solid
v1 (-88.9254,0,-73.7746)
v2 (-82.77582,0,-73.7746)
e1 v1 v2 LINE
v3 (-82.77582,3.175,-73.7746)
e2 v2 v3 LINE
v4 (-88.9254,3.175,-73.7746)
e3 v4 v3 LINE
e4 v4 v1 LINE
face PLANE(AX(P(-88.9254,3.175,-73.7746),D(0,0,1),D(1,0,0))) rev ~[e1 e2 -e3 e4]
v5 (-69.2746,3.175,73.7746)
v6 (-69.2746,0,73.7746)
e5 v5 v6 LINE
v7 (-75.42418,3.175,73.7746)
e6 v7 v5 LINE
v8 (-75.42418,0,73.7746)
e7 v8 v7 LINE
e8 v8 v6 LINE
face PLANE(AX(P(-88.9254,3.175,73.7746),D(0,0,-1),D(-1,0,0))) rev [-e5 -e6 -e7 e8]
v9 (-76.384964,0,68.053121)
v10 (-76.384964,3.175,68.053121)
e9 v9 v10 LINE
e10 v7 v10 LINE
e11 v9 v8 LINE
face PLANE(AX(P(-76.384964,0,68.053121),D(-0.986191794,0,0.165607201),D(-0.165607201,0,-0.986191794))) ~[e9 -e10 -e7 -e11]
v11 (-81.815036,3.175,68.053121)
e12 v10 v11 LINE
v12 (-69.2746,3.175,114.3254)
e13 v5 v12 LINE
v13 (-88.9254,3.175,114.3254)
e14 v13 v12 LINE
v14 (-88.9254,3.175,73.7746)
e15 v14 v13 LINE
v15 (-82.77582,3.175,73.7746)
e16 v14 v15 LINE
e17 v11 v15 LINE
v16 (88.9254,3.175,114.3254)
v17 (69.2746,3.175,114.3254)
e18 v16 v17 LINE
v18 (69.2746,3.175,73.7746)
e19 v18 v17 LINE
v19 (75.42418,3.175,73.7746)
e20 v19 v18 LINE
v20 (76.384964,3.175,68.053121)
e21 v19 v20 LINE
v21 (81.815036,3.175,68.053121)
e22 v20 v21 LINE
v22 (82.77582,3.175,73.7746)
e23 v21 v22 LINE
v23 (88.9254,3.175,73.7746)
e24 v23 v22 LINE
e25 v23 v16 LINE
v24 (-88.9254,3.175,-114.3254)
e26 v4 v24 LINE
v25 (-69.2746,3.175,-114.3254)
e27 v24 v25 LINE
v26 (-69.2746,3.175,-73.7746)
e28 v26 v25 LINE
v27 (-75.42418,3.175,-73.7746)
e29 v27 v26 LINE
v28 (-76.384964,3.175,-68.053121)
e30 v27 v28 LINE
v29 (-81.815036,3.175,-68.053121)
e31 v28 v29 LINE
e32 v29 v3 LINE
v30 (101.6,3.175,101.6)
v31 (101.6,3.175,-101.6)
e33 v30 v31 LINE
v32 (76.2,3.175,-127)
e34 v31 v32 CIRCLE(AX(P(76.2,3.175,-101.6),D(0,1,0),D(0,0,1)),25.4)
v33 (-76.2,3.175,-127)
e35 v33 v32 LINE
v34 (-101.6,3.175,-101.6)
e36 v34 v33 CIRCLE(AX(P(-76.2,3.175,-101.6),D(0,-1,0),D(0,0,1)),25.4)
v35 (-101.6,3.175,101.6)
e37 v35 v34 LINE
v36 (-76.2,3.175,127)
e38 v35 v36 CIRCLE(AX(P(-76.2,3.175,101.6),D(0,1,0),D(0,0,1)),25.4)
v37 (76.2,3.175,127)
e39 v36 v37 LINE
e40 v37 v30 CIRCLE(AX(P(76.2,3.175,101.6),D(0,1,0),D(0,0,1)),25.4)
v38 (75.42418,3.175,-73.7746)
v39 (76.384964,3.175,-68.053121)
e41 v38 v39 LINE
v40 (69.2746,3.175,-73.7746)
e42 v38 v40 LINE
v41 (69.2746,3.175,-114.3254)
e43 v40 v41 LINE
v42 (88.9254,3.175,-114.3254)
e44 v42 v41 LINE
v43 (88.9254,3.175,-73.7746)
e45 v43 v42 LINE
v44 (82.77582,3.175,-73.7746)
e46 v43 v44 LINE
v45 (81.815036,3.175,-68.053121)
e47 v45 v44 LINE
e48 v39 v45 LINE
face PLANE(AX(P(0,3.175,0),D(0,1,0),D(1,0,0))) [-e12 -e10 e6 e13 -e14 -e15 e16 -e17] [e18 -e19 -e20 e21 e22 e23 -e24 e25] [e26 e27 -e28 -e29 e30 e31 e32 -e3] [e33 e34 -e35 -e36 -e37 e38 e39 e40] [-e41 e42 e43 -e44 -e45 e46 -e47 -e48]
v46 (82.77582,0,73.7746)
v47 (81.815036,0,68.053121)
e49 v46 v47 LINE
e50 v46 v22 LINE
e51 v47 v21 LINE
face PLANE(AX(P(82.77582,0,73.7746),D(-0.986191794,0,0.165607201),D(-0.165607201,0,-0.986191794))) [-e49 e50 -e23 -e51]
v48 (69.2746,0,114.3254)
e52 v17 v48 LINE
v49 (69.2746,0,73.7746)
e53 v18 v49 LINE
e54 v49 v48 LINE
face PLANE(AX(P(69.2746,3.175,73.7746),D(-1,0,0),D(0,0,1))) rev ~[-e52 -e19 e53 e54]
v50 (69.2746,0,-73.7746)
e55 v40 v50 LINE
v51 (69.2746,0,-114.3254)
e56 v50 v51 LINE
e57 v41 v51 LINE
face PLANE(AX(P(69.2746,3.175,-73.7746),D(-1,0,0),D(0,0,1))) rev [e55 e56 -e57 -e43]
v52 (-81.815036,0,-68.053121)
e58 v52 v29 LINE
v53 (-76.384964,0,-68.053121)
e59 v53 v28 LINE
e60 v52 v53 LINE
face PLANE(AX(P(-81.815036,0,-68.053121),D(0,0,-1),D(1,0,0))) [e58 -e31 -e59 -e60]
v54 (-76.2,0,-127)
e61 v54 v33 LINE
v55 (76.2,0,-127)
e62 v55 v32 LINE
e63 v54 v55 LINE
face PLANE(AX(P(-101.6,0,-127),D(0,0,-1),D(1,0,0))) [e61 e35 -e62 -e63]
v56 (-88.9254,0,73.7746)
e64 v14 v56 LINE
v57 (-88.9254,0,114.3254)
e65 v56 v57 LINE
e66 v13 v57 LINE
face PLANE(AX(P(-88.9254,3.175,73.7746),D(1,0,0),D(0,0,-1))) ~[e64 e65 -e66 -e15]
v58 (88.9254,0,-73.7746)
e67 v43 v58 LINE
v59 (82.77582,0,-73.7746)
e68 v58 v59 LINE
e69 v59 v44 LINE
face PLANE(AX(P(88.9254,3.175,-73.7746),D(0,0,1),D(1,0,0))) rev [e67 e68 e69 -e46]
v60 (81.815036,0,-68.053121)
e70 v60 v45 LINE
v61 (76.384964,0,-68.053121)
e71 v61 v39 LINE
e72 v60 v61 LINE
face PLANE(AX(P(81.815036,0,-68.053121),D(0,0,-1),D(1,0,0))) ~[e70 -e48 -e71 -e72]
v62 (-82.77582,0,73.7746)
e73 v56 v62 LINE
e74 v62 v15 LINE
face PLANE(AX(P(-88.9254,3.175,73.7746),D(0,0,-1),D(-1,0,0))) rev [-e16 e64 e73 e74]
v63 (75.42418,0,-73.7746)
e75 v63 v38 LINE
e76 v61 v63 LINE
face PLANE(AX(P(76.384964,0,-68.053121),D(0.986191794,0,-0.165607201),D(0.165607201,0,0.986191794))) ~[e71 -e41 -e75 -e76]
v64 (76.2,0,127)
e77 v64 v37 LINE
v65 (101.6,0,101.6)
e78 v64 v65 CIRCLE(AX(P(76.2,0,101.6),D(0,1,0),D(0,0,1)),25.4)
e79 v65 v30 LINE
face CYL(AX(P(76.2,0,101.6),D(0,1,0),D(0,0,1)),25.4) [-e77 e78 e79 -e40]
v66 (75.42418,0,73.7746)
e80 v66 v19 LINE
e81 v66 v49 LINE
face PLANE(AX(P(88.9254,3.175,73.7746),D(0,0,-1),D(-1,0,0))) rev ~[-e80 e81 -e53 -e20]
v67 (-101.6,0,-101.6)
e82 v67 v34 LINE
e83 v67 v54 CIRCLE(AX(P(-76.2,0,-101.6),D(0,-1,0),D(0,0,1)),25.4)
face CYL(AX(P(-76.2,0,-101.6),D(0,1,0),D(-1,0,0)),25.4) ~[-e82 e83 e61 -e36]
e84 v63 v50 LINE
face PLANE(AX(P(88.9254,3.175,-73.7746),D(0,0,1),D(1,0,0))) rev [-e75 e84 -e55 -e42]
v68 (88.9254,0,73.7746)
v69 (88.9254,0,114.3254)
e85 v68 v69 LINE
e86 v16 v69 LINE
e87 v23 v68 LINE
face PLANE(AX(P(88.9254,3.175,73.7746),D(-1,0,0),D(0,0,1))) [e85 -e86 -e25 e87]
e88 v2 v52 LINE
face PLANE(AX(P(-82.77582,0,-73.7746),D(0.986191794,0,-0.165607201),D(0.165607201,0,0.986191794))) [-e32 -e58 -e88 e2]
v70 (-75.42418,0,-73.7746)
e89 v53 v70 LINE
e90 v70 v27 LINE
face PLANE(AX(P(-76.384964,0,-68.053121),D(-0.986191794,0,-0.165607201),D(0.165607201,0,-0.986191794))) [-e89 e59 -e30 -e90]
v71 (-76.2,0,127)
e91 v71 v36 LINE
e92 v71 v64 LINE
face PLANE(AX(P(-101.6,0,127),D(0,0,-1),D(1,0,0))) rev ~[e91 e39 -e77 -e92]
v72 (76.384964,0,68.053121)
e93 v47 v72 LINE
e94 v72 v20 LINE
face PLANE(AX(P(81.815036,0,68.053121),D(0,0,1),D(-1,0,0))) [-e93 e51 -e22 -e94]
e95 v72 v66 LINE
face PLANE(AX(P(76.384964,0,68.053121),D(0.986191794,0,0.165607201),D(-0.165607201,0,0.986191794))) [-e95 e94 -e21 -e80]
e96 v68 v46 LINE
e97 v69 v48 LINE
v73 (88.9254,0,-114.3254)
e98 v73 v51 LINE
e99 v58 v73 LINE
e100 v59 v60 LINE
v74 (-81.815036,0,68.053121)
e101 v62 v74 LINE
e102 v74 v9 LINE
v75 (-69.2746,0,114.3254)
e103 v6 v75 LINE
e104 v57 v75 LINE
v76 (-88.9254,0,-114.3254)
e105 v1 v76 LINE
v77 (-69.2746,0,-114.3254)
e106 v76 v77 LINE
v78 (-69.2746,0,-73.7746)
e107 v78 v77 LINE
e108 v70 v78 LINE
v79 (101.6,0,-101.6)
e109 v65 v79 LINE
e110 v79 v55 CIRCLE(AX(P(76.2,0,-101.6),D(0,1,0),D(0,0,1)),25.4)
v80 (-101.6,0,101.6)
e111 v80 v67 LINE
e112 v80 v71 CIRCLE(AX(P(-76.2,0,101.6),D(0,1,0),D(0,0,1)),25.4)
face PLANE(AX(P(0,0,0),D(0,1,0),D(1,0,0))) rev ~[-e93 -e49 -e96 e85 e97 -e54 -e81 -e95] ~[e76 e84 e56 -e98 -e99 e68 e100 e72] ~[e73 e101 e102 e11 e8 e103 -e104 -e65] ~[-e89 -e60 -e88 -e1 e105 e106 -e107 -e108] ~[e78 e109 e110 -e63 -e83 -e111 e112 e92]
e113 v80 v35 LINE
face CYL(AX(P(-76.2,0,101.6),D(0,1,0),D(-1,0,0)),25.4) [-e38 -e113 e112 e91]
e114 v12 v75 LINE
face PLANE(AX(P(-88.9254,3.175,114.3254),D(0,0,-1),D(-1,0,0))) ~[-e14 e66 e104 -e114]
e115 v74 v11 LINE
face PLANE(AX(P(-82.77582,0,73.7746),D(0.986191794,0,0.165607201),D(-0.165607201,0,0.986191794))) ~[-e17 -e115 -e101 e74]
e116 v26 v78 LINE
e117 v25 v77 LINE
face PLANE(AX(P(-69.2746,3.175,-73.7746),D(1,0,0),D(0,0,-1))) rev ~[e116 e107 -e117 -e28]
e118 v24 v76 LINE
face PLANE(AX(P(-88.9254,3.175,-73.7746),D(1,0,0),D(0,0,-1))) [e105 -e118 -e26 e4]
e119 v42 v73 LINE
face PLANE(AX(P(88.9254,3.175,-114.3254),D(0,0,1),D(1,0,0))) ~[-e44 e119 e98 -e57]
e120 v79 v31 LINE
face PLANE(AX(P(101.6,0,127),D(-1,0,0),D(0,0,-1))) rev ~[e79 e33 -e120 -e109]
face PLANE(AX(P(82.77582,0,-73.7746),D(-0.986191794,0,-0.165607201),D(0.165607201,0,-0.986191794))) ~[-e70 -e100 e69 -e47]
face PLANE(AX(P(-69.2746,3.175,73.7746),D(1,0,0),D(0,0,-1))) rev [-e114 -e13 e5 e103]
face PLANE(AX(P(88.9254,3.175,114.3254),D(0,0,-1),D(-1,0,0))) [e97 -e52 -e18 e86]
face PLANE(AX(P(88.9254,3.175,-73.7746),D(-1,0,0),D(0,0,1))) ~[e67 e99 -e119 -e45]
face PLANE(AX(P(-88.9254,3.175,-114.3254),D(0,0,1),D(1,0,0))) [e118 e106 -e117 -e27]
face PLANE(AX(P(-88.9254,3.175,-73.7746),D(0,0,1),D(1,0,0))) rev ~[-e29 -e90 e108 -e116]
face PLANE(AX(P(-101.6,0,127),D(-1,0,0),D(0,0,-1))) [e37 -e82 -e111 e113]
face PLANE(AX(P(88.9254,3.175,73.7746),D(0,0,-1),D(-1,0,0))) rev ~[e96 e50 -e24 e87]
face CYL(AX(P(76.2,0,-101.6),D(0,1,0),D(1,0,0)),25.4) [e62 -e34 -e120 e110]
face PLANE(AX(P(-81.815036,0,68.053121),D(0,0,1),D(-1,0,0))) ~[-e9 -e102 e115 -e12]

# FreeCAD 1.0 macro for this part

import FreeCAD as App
import Part
import Sketcher
Q = App.Units.Quantity


def edges_at(feature, points):
    """Names of the edges that pass closest to the given points."""
    edges = feature.Shape.Edges
    near = lambda p: min(range(len(edges)), key=lambda i: edges[i].distToShape(Part.Vertex(*p))[0])
    return sorted({f"Edge{near(p) + 1}" for p in points})

doc = App.newDocument("Part")
body = doc.addObject("PartDesign::Body", "Body")

# Sketch on XZ plane
sketch1 = body.newObject("Sketcher::SketchObject", "Sketch")
sketch1.AttachmentSupport = (doc.getObject("XZ_Plane"), [""])
sketch1.MapMode = "FlatFace"
sketch1.addGeometry([
    Part.LineSegment(App.Vector(-102, -127, 0), App.Vector(-102, 127, 0)),
    Part.LineSegment(App.Vector(-102, 127, 0), App.Vector(102, 127, 0)),
    Part.LineSegment(App.Vector(102, 127, 0), App.Vector(102, -127, 0)),
    Part.LineSegment(App.Vector(102, -127, 0), App.Vector(-102, -127, 0)),
], False)
sketch1.addConstraint([
    Sketcher.Constraint("Coincident", 0, 2, 1, 1),
    Sketcher.Constraint("Coincident", 1, 2, 2, 1),
    Sketcher.Constraint("Coincident", 2, 2, 3, 1),
    Sketcher.Constraint("Coincident", 3, 2, 0, 1),
    Sketcher.Constraint("Vertical", 0),
    Sketcher.Constraint("Horizontal", 1),
    Sketcher.Constraint("Vertical", 2),
    Sketcher.Constraint("Horizontal", 3),
    Sketcher.Constraint("Symmetric", 0, 2, 2, 2, -1, 1),
    Sketcher.Constraint("DistanceX", 1, 1, 1, 2, Q("8 in")),
    Sketcher.Constraint("DistanceY", 0, 1, 0, 2, Q("10 in")),
])
pad1 = body.newObject("PartDesign::Pad", "Pad")
pad1.Profile = sketch1
pad1.Length = Q("0.125 in")
pad1.Reversed = True
doc.recompute()

fillet = body.newObject("PartDesign::Fillet", "Fillet")
fillet.Base = (pad1, edges_at(pad1, [
    (101.6, 1.587, 127),
    (-101.6, 1.587, 127),
    (-101.6, 1.587, -127),
    (101.6, 1.587, -127),
]))
fillet.Radius = Q("1 in")

# Sketch on XZ plane
sketch2 = body.newObject("Sketcher::SketchObject", "Sketch001")
sketch2.AttachmentSupport = (doc.getObject("XZ_Plane"), [""])
sketch2.MapMode = "FlatFace"
sketch2.AttachmentOffset = App.Placement(App.Vector(0, 0, -0.125 * 25.4), App.Rotation())
sketch2.addGeometry([
    Part.LineSegment(App.Vector(-89, -114, 0), App.Vector(-89, -74, 0)),
    Part.LineSegment(App.Vector(-89, -74, 0), App.Vector(-69, -74, 0)),
    Part.LineSegment(App.Vector(-69, -74, 0), App.Vector(-69, -114, 0)),
    Part.LineSegment(App.Vector(-69, -114, 0), App.Vector(-89, -114, 0)),
], False)
sketch2.addConstraint([
    Sketcher.Constraint("Coincident", 0, 2, 1, 1),
    Sketcher.Constraint("Coincident", 1, 2, 2, 1),
    Sketcher.Constraint("Coincident", 2, 2, 3, 1),
    Sketcher.Constraint("Coincident", 3, 2, 0, 1),
    Sketcher.Constraint("Vertical", 0),
    Sketcher.Constraint("Horizontal", 1),
    Sketcher.Constraint("Vertical", 2),
    Sketcher.Constraint("Horizontal", 3),
    Sketcher.Constraint("DistanceX", 0, 2, -1, 1, Q("3.501 in")),
    Sketcher.Constraint("DistanceY", 2, 2, -1, 1, Q("4.501 in")),
    Sketcher.Constraint("DistanceX", 1, 1, 1, 2, 19.6508),
    Sketcher.Constraint("DistanceY", 0, 1, 0, 2, 40.5508),
])
pocket1 = body.newObject("PartDesign::Pocket", "Pocket")
pocket1.Profile = sketch2
pocket1.Type = "ThroughAll"
pocket1.Reversed = True

# Sketch on XZ plane
sketch3 = body.newObject("Sketcher::SketchObject", "Sketch002")
sketch3.AttachmentSupport = (doc.getObject("XZ_Plane"), [""])
sketch3.MapMode = "FlatFace"
sketch3.addGeometry([
    Part.LineSegment(App.Vector(-82, -68, 0), App.Vector(-83, -74, 0)),
    Part.LineSegment(App.Vector(-83, -74, 0), App.Vector(-75, -74, 0)),
    Part.LineSegment(App.Vector(-75, -74, 0), App.Vector(-76, -68, 0)),
    Part.LineSegment(App.Vector(-76, -68, 0), App.Vector(-82, -68, 0)),
], False)
sketch3.addConstraint([
    Sketcher.Constraint("Coincident", 0, 2, 1, 1),
    Sketcher.Constraint("Coincident", 1, 2, 2, 1),
    Sketcher.Constraint("Coincident", 2, 2, 3, 1),
    Sketcher.Constraint("Coincident", 3, 2, 0, 1),
    Sketcher.Constraint("Horizontal", 1),
    Sketcher.Constraint("Horizontal", 3),
    Sketcher.Constraint("Equal", 0, 2),
    Sketcher.Constraint("DistanceX", 1, 1, 1, 2, 7.351641),
    Sketcher.Constraint("DistanceX", 3, 2, 3, 1, 5.430071),
    Sketcher.Constraint("DistanceY", 0, 2, -1, 1, 73.7746),
    Sketcher.Constraint("Distance", 0, 5.801588),
    Sketcher.Constraint("DistanceX", 0, 2, -1, 1, 82.77582),
])
pocket2 = body.newObject("PartDesign::Pocket", "Pocket001")
pocket2.Profile = sketch3
pocket2.Type = "ThroughAll"
doc.recompute()

mirrored = body.newObject("PartDesign::Mirrored", "Mirrored")
mirrored.Originals = [pocket1, pocket2]
mirrored.MirrorPlane = (doc.getObject("YZ_Plane"), [""])
body.Tip = mirrored
doc.recompute()

mirrored2 = body.newObject("PartDesign::Mirrored", "Mirrored001")
mirrored2.Originals = [pocket1, pocket2]
mirrored2.MirrorPlane = (doc.getObject("XY_Plane"), [""])
body.Tip = mirrored2

# Sketch on XZ plane
sketch4 = body.newObject("Sketcher::SketchObject", "Sketch003")
sketch4.AttachmentSupport = (doc.getObject("XZ_Plane"), [""])
sketch4.MapMode = "FlatFace"
sketch4.AttachmentOffset = App.Placement(App.Vector(0, 0, -0.125 * 25.4), App.Rotation())
sketch4.addGeometry([
    Part.LineSegment(App.Vector(89, 114, 0), App.Vector(89, 74, 0)),
    Part.LineSegment(App.Vector(89, 74, 0), App.Vector(69, 74, 0)),
    Part.LineSegment(App.Vector(69, 74, 0), App.Vector(69, 114, 0)),
    Part.LineSegment(App.Vector(69, 114, 0), App.Vector(89, 114, 0)),
], False)
sketch4.addConstraint([
    Sketcher.Constraint("Coincident", 0, 2, 1, 1),
    Sketcher.Constraint("Coincident", 1, 2, 2, 1),
    Sketcher.Constraint("Coincident", 2, 2, 3, 1),
    Sketcher.Constraint("Coincident", 3, 2, 0, 1),
    Sketcher.Constraint("Vertical", 0),
    Sketcher.Constraint("Horizontal", 1),
    Sketcher.Constraint("Vertical", 2),
    Sketcher.Constraint("Horizontal", 3),
    Sketcher.Constraint("DistanceX", -1, 1, 0, 2, Q("3.501 in")),
    Sketcher.Constraint("DistanceY", -1, 1, 2, 2, Q("4.501 in")),
    Sketcher.Constraint("DistanceX", 1, 2, 1, 1, 19.6508),
    Sketcher.Constraint("DistanceY", 0, 2, 0, 1, 40.5508),
])
pocket3 = body.newObject("PartDesign::Pocket", "Pocket002")
pocket3.Profile = sketch4
pocket3.Type = "ThroughAll"
pocket3.Reversed = True

# Sketch on XZ plane
sketch5 = body.newObject("Sketcher::SketchObject", "Sketch004")
sketch5.AttachmentSupport = (doc.getObject("XZ_Plane"), [""])
sketch5.MapMode = "FlatFace"
sketch5.addGeometry([
    Part.LineSegment(App.Vector(82, 68, 0), App.Vector(83, 74, 0)),
    Part.LineSegment(App.Vector(83, 74, 0), App.Vector(75, 74, 0)),
    Part.LineSegment(App.Vector(75, 74, 0), App.Vector(76, 68, 0)),
    Part.LineSegment(App.Vector(76, 68, 0), App.Vector(82, 68, 0)),
], False)
sketch5.addConstraint([
    Sketcher.Constraint("Coincident", 0, 2, 1, 1),
    Sketcher.Constraint("Coincident", 1, 2, 2, 1),
    Sketcher.Constraint("Coincident", 2, 2, 3, 1),
    Sketcher.Constraint("Coincident", 3, 2, 0, 1),
    Sketcher.Constraint("Horizontal", 1),
    Sketcher.Constraint("Horizontal", 3),
    Sketcher.Constraint("Equal", 0, 2),
    Sketcher.Constraint("DistanceX", 1, 2, 1, 1, 7.351641),
    Sketcher.Constraint("DistanceX", 3, 1, 3, 2, 5.430071),
    Sketcher.Constraint("DistanceY", -1, 1, 0, 2, 73.7746),
    Sketcher.Constraint("Distance", 0, 5.801588),
    Sketcher.Constraint("DistanceX", -1, 1, 0, 2, 82.77582),
])
pocket4 = body.newObject("PartDesign::Pocket", "Pocket003")
pocket4.Profile = sketch5
pocket4.Type = "ThroughAll"

doc.recompute()
